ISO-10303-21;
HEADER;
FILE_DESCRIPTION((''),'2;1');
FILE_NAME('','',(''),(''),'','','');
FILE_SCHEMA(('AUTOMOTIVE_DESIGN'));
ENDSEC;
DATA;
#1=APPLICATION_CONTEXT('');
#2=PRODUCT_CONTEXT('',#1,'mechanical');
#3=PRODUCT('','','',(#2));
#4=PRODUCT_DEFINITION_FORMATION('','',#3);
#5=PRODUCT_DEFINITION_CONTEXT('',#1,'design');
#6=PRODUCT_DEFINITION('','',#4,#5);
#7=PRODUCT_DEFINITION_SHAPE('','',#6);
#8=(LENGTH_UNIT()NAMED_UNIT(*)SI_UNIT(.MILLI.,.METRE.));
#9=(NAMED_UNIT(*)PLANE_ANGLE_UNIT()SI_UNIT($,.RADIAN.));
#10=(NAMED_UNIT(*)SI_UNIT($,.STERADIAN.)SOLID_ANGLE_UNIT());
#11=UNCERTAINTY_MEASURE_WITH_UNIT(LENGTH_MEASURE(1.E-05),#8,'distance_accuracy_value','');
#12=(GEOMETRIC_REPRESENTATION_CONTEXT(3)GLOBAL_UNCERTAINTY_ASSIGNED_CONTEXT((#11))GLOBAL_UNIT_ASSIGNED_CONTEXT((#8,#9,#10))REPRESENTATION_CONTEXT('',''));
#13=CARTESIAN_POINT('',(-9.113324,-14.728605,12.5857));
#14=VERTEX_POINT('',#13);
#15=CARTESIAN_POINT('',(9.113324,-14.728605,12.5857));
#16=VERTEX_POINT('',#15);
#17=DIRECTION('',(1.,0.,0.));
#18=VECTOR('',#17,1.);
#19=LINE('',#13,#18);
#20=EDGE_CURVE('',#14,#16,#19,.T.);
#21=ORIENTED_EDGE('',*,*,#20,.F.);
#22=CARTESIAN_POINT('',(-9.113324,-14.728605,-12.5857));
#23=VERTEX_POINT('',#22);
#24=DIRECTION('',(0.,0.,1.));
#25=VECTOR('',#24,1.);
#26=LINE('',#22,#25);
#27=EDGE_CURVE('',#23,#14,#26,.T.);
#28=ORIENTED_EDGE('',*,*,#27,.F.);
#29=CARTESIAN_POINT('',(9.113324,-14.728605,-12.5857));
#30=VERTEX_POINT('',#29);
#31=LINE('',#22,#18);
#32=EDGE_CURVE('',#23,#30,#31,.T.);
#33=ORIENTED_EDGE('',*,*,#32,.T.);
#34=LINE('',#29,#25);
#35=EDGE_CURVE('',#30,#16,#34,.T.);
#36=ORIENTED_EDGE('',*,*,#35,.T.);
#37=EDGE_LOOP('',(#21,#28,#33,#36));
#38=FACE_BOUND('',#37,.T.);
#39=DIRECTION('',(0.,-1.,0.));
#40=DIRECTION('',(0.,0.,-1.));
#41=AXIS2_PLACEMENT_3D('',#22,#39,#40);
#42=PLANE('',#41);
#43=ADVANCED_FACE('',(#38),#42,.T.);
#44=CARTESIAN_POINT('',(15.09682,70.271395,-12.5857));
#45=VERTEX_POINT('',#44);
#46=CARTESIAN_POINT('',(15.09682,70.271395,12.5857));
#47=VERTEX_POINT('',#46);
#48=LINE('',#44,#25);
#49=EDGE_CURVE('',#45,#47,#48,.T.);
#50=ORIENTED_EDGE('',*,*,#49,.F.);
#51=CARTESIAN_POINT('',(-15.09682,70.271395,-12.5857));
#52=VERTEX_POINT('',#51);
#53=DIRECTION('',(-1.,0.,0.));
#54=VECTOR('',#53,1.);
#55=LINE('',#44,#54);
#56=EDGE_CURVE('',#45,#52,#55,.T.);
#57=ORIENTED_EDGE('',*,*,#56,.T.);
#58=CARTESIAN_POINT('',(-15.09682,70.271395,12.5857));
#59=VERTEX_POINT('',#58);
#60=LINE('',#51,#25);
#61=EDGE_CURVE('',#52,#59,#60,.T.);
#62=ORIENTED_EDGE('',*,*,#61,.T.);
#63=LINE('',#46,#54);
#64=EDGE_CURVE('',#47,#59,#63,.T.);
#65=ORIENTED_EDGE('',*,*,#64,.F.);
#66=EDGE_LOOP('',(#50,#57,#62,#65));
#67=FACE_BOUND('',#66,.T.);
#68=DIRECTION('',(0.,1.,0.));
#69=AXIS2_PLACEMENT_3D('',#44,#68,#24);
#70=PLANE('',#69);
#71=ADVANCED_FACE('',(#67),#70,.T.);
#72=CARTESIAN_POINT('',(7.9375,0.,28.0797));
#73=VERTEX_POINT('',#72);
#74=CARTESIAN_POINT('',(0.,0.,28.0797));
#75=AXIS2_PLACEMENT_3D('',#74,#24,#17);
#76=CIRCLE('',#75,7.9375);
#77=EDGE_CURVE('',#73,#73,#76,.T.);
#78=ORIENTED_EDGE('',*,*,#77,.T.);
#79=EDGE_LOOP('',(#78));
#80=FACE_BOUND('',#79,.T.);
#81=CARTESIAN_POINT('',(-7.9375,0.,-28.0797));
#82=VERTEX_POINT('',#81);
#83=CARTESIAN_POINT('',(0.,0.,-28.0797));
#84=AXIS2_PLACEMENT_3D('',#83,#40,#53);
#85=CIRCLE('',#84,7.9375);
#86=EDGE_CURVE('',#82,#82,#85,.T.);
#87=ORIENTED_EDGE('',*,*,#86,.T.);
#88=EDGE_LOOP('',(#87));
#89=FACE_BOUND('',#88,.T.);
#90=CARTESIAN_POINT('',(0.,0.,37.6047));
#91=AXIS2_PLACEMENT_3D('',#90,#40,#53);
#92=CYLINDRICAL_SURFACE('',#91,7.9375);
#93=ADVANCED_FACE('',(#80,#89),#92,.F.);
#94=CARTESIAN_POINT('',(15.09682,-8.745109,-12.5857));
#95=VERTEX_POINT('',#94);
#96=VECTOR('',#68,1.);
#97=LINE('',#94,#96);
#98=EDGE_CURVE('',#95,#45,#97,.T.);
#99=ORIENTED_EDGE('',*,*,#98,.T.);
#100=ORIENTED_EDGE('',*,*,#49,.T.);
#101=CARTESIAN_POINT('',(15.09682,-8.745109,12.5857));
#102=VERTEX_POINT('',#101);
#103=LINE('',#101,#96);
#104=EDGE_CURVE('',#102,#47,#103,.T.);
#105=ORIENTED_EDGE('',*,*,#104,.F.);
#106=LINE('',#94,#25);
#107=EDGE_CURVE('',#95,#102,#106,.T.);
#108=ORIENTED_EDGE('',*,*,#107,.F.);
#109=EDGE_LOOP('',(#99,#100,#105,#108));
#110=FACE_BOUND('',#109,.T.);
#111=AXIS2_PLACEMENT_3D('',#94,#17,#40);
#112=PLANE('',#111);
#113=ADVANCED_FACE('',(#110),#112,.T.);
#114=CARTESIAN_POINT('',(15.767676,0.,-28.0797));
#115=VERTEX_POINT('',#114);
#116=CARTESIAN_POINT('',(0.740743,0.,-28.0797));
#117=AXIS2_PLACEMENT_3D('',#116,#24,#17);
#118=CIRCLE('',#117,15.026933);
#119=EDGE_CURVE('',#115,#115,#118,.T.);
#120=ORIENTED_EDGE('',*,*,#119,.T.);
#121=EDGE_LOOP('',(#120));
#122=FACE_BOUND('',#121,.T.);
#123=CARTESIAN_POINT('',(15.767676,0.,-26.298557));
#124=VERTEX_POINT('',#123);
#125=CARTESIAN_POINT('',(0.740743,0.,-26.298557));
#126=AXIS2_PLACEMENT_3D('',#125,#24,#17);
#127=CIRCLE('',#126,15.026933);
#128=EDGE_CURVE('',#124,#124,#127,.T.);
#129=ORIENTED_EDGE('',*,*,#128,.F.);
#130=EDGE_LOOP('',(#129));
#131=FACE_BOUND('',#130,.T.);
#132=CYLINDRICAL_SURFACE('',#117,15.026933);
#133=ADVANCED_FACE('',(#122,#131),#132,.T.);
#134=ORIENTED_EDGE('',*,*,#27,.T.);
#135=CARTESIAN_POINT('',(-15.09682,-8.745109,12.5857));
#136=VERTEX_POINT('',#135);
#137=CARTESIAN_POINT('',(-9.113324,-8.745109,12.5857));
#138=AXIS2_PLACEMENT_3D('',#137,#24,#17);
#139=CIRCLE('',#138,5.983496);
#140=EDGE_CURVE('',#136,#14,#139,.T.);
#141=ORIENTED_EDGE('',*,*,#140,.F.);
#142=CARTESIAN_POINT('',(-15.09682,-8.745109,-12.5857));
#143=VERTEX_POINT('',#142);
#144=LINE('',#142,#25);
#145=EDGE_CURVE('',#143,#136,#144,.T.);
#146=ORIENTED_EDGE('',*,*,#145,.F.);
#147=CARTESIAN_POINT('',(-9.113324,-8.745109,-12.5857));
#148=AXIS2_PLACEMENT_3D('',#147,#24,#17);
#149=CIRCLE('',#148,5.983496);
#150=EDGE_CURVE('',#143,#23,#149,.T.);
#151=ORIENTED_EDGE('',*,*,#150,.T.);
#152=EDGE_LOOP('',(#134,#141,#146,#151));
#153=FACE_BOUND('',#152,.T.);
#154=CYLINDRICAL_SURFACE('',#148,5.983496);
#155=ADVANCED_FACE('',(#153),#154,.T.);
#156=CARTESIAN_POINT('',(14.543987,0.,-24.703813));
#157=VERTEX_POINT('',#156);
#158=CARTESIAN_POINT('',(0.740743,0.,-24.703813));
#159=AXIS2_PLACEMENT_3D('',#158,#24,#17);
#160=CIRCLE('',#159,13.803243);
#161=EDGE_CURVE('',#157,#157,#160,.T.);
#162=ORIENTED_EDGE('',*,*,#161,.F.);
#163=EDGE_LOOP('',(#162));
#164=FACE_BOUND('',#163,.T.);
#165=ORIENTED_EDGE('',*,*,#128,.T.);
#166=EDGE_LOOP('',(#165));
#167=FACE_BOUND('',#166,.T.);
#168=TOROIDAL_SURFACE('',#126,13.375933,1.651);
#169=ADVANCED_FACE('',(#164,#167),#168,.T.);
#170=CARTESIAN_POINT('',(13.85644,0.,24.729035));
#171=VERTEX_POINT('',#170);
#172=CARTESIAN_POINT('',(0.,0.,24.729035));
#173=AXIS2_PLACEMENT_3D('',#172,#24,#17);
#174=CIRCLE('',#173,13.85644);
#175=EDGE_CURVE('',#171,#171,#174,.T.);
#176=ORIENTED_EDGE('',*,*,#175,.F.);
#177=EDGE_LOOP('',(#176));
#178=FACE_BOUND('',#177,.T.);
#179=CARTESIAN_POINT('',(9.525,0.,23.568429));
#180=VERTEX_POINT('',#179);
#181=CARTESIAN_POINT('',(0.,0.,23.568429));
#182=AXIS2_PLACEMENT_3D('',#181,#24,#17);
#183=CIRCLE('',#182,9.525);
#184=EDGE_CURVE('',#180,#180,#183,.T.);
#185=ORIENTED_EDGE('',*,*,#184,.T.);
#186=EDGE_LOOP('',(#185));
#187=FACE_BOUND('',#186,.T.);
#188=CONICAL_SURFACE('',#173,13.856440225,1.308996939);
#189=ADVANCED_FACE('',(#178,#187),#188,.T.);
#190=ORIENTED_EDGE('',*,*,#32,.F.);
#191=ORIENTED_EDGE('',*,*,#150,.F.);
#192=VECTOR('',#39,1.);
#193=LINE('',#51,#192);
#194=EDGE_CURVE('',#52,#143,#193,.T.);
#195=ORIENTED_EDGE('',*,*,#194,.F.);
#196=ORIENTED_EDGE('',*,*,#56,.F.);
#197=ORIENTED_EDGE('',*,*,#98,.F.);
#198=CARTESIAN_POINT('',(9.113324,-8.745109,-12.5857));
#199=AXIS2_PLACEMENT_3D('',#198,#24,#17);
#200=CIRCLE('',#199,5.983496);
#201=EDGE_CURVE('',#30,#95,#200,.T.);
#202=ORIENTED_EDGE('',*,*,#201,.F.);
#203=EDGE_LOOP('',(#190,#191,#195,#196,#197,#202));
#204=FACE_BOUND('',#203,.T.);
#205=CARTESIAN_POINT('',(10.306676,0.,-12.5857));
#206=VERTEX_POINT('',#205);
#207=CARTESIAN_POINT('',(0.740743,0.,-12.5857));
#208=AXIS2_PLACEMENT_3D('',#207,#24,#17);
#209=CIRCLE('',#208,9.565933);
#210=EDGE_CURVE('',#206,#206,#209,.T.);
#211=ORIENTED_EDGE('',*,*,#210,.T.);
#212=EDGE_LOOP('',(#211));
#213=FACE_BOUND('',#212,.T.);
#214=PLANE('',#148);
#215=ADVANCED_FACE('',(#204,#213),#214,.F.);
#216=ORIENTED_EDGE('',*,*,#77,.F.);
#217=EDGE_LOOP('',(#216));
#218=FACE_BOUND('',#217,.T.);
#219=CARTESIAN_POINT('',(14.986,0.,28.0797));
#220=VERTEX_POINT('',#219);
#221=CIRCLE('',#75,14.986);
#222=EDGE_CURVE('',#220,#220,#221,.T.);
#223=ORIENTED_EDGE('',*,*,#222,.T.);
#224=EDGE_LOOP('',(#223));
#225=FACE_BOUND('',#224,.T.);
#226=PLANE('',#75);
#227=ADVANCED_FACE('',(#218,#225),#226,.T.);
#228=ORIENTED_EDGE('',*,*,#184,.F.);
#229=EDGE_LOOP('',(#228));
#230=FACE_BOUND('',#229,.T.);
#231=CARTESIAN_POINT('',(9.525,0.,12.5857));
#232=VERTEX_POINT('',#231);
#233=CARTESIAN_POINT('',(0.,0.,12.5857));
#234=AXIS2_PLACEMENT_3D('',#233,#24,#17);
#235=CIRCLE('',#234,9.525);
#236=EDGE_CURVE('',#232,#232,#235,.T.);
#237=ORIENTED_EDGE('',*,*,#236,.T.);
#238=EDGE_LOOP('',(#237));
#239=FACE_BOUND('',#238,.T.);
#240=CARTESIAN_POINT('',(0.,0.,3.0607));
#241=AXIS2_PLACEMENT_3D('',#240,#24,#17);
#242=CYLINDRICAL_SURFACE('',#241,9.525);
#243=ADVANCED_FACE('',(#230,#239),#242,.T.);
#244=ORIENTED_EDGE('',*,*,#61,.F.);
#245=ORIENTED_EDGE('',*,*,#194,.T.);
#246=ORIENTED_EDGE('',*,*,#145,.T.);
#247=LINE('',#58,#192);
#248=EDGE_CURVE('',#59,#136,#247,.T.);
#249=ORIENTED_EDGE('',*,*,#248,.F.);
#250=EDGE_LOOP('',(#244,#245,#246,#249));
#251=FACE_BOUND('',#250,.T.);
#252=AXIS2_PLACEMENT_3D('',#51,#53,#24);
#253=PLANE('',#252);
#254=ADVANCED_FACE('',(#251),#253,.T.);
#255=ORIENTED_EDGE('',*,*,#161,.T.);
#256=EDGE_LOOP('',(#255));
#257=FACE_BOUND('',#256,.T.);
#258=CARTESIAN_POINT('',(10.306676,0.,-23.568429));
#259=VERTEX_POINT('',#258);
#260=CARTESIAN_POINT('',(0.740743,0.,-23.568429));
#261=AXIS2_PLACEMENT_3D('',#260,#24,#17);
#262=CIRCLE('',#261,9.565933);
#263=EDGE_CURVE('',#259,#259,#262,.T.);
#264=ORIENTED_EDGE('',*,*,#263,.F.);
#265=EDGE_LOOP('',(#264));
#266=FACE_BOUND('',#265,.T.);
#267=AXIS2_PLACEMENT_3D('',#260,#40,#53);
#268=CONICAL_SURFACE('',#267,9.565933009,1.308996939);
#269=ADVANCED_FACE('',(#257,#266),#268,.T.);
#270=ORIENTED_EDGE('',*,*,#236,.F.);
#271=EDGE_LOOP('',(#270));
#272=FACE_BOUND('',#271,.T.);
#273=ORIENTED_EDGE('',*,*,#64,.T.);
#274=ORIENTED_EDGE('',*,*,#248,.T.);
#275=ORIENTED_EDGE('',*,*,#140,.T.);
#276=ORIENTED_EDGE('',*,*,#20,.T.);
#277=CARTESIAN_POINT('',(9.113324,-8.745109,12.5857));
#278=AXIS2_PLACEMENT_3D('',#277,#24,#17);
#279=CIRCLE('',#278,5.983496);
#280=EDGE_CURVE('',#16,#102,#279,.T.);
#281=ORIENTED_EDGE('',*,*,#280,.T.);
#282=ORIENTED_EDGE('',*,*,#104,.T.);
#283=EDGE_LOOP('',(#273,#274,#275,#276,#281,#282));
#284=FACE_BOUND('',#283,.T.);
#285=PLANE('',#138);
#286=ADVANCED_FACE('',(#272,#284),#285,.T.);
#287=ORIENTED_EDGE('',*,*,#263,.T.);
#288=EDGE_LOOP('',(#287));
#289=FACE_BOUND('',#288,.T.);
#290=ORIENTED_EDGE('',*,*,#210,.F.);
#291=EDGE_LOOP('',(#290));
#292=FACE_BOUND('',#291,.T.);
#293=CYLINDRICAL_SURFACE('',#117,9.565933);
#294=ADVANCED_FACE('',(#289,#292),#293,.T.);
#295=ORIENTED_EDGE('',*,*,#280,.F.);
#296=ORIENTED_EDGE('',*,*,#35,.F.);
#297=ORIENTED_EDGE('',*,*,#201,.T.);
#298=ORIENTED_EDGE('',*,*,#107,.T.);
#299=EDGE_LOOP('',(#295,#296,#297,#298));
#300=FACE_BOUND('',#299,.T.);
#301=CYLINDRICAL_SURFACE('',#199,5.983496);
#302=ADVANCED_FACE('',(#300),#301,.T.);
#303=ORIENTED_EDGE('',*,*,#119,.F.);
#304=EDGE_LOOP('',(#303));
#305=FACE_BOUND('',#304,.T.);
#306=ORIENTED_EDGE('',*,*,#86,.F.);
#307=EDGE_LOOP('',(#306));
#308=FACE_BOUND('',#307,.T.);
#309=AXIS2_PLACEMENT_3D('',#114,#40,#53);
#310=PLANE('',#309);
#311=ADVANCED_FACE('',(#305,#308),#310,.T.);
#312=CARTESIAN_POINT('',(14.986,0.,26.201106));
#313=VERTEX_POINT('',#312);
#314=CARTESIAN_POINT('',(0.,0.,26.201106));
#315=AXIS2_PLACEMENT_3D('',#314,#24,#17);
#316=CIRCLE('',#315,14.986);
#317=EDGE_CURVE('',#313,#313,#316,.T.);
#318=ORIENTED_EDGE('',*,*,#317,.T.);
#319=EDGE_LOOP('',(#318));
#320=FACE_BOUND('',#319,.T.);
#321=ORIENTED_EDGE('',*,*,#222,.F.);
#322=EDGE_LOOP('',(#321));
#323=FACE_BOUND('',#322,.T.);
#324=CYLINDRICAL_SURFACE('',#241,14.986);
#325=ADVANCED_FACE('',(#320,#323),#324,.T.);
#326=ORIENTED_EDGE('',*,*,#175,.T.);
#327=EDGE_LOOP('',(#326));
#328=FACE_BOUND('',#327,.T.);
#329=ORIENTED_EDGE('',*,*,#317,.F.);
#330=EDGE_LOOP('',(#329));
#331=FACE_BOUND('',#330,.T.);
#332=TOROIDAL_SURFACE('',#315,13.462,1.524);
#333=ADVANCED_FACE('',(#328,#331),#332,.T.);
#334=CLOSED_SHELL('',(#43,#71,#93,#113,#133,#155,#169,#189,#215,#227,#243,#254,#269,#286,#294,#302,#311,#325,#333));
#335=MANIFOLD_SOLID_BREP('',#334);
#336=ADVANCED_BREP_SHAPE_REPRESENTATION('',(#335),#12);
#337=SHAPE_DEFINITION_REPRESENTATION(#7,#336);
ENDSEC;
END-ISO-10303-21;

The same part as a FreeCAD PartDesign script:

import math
import FreeCAD as App
import Part
import Sketcher
from FreeCAD import Vector
Q = App.Units.Quantity


def add_polygon(sketch, points):
    """Adds a closed chain of lines whose ends are joined by coincident constraints."""
    first, n = sketch.GeometryCount, len(points)
    for a, b in zip(points, points[1:] + points[:1]):
        sketch.addGeometry(Part.LineSegment(App.Vector(*a, 0), App.Vector(*b, 0)), False)
    for i in range(n):
        sketch.addConstraint(Sketcher.Constraint("Coincident", first + i, 2, first + (i + 1) % n, 1))

doc = App.newDocument("Part")
body = doc.addObject("PartDesign::Body", "Body")

# Sketch on XY plane
sketch1 = doc.addObject("Sketcher::SketchObject", "Sketch")
body.addObject(sketch1)
sketch1.AttachmentSupport = (doc.XY_Plane, [""])
sketch1.MapMode = "FlatFace"
sketch1.AttachmentOffset = App.Placement(Vector(0, 0, 0.4955 * 25.4), App.Rotation())
sketch1.addGeometry(Part.LineSegment(Vector(-15, 70, 0), Vector(-15, -9, 0)), False)
sketch1.addGeometry(Part.ArcOfCircle(Part.Circle(Vector(-9, -9, 0), Vector(0, 0, 1), 6), math.radians(180), math.radians(270)), False)
sketch1.addGeometry(Part.LineSegment(Vector(-9, -15, 0), Vector(9, -15, 0)), False)
sketch1.addGeometry(Part.ArcOfCircle(Part.Circle(Vector(9, -9, 0), Vector(0, 0, 1), 6), math.radians(-90), math.radians(0)), False)
sketch1.addGeometry(Part.LineSegment(Vector(15, -9, 0), Vector(15, 70, 0)), False)
sketch1.addGeometry(Part.LineSegment(Vector(15, 70, 0), Vector(-15, 70, 0)), False)
sketch1.addConstraint(Sketcher.Constraint("Tangent", 0, 2, 1, 1))
sketch1.addConstraint(Sketcher.Constraint("Tangent", 1, 2, 2, 1))
sketch1.addConstraint(Sketcher.Constraint("Tangent", 2, 2, 3, 1))
sketch1.addConstraint(Sketcher.Constraint("Tangent", 3, 2, 4, 1))
sketch1.addConstraint(Sketcher.Constraint("Coincident", 4, 2, 5, 1))
sketch1.addConstraint(Sketcher.Constraint("Coincident", 5, 2, 0, 1))
sketch1.addConstraint(Sketcher.Constraint("Vertical", 0))
sketch1.addConstraint(Sketcher.Constraint("Horizontal", 2))
sketch1.addConstraint(Sketcher.Constraint("Vertical", 4))
sketch1.addConstraint(Sketcher.Constraint("Horizontal", 5))
sketch1.addConstraint(Sketcher.Constraint("Equal", 1, 3))
sketch1.addConstraint(Sketcher.Constraint("Radius", 1, 5.983496))
sketch1.addConstraint(Sketcher.Constraint("DistanceX", 2, 1, 2, 2, 18.226649))
sketch1.addConstraint(Sketcher.Constraint("DistanceY", 2, 2, 4, 2, 85.0))
sketch1.addConstraint(Sketcher.Constraint("DistanceY", 1, 3, -1, 1, 8.745109))
sketch1.addConstraint(Sketcher.Constraint("DistanceX", 0, 2, -1, 1, 15.09682))
pad1 = doc.addObject("PartDesign::Pad", "Pad")
body.addObject(pad1)
pad1.Profile = sketch1
pad1.Length = Q("0.991 in")
pad1.Reversed = True

# Sketch on XZ plane
sketch2 = doc.addObject("Sketcher::SketchObject", "Sketch001")
body.addObject(sketch2)
sketch2.AttachmentSupport = (doc.XZ_Plane, [""])
sketch2.MapMode = "FlatFace"
sketch2.addGeometry(Part.LineSegment(Vector(15.8, -28.1, 0), Vector(0.7, -28.1, 0)), False)
sketch2.addGeometry(Part.LineSegment(Vector(0.7, -28.1, 0), Vector(0.7, -12.6, 0)), False)
sketch2.addGeometry(Part.LineSegment(Vector(0.7, -12.6, 0), Vector(10.3, -12.6, 0)), False)
sketch2.addGeometry(Part.LineSegment(Vector(10.3, -12.6, 0), Vector(10.3, -23.6, 0)), False)
sketch2.addGeometry(Part.LineSegment(Vector(10.3, -23.6, 0), Vector(14.5, -24.7, 0)), False)
sketch2.addGeometry(Part.ArcOfCircle(Part.Circle(Vector(14.1, -26.3, 0), Vector(0, 0, 1), 1.7), math.radians(0), math.radians(75)), False)
sketch2.addGeometry(Part.LineSegment(Vector(15.8, -26.3, 0), Vector(15.8, -28.1, 0)), False)
sketch2.addGeometry(Part.LineSegment(Vector(0.7, -28.1, 0), Vector(0.7, -12.6, 0)), True)  # axis
sketch2.addConstraint(Sketcher.Constraint("Coincident", 0, 2, 1, 1))
sketch2.addConstraint(Sketcher.Constraint("Coincident", 1, 2, 2, 1))
sketch2.addConstraint(Sketcher.Constraint("Coincident", 2, 2, 3, 1))
sketch2.addConstraint(Sketcher.Constraint("Coincident", 3, 2, 4, 1))
sketch2.addConstraint(Sketcher.Constraint("Tangent", 4, 2, 5, 2))
sketch2.addConstraint(Sketcher.Constraint("Tangent", 5, 1, 6, 1))
sketch2.addConstraint(Sketcher.Constraint("Coincident", 6, 2, 0, 1))
sketch2.addConstraint(Sketcher.Constraint("Horizontal", 0))
sketch2.addConstraint(Sketcher.Constraint("Vertical", 1))
sketch2.addConstraint(Sketcher.Constraint("Horizontal", 2))
sketch2.addConstraint(Sketcher.Constraint("Vertical", 3))
sketch2.addConstraint(Sketcher.Constraint("Vertical", 6))
sketch2.addConstraint(Sketcher.Constraint("Vertical", 7))
sketch2.addConstraint(Sketcher.Constraint("Coincident", 7, 1, 0, 2))
sketch2.addConstraint(Sketcher.Constraint("Horizontal", 2, 2, 7, 2))
sketch2.addConstraint(Sketcher.Constraint("Angle", 4, Q("-15 deg")))
sketch2.addConstraint(Sketcher.Constraint("Radius", 5, Q("0.065 in")))
sketch2.addConstraint(Sketcher.Constraint("DistanceY", 1, 1, 1, 2, Q("0.61 in")))
sketch2.addConstraint(Sketcher.Constraint("DistanceX", 2, 2, 5, 3, Q("0.15 in")))
sketch2.addConstraint(Sketcher.Constraint("DistanceY", 0, 2, -1, 1, Q("1.1055 in")))
sketch2.addConstraint(Sketcher.Constraint("DistanceY", 3, 2, 3, 1, 10.982729))
sketch2.addConstraint(Sketcher.Constraint("DistanceX", 0, 2, 0, 1, 15.026933))
sketch2.addConstraint(Sketcher.Constraint("DistanceX", -1, 1, 5, 3, 14.116676))
revolution = doc.addObject("PartDesign::Revolution", "Revolution")
body.addObject(revolution)
revolution.Profile = sketch2
revolution.ReferenceAxis = (sketch2, ["Axis0"])
revolution.Angle = 360

# Sketch on XZ plane
sketch3 = doc.addObject("Sketcher::SketchObject", "Sketch002")
body.addObject(sketch3)
sketch3.AttachmentSupport = (doc.XZ_Plane, [""])
sketch3.MapMode = "FlatFace"
sketch3.addGeometry(Part.LineSegment(Vector(9.5, 12.6, 0), Vector(0, 12.6, 0)), False)
sketch3.addGeometry(Part.LineSegment(Vector(0, 12.6, 0), Vector(0, 28.1, 0)), False)
sketch3.addGeometry(Part.LineSegment(Vector(0, 28.1, 0), Vector(15, 28.1, 0)), False)
sketch3.addGeometry(Part.LineSegment(Vector(15, 28.1, 0), Vector(15, 26.2, 0)), False)
sketch3.addGeometry(Part.ArcOfCircle(Part.Circle(Vector(13.5, 26.2, 0), Vector(0, 0, 1), 1.5), math.radians(-75), math.radians(0)), False)
sketch3.addGeometry(Part.LineSegment(Vector(13.9, 24.7, 0), Vector(9.5, 23.6, 0)), False)
sketch3.addGeometry(Part.LineSegment(Vector(9.5, 23.6, 0), Vector(9.5, 12.6, 0)), False)
sketch3.addConstraint(Sketcher.Constraint("Coincident", 0, 2, 1, 1))
sketch3.addConstraint(Sketcher.Constraint("Coincident", 1, 2, 2, 1))
sketch3.addConstraint(Sketcher.Constraint("Coincident", 2, 2, 3, 1))
sketch3.addConstraint(Sketcher.Constraint("Tangent", 3, 2, 4, 2))
sketch3.addConstraint(Sketcher.Constraint("Tangent", 4, 1, 5, 1))
sketch3.addConstraint(Sketcher.Constraint("Coincident", 5, 2, 6, 1))
sketch3.addConstraint(Sketcher.Constraint("Coincident", 6, 2, 0, 1))
sketch3.addConstraint(Sketcher.Constraint("Horizontal", 0))
sketch3.addConstraint(Sketcher.Constraint("Vertical", 1))
sketch3.addConstraint(Sketcher.Constraint("Horizontal", 2))
sketch3.addConstraint(Sketcher.Constraint("Vertical", 3))
sketch3.addConstraint(Sketcher.Constraint("Vertical", 6))
sketch3.addConstraint(Sketcher.Constraint("PointOnObject", 0, 2, -2))
sketch3.addConstraint(Sketcher.Constraint("Radius", 4, Q("0.06 in")))
sketch3.addConstraint(Sketcher.Constraint("Angle", 5, Q("-165 deg")))
sketch3.addConstraint(Sketcher.Constraint("DistanceX", 2, 1, 2, 2, Q("0.59 in")))
sketch3.addConstraint(Sketcher.Constraint("DistanceY", 1, 1, 1, 2, Q("0.61 in")))
sketch3.addConstraint(Sketcher.Constraint("DistanceX", 0, 2, 0, 1, Q("0.375 in")))
sketch3.addConstraint(Sketcher.Constraint("DistanceY", -1, 1, 0, 2, Q("0.4955 in")))
sketch3.addConstraint(Sketcher.Constraint("DistanceY", 6, 2, 6, 1, 10.982729))
revolution2 = doc.addObject("PartDesign::Revolution", "Revolution001")
body.addObject(revolution2)
revolution2.Profile = sketch3
revolution2.ReferenceAxis = (sketch3, ["V_Axis"])
revolution2.Angle = 360

# Sketch on XZ plane
sketch4 = doc.addObject("Sketcher::SketchObject", "Sketch003")
body.addObject(sketch4)
sketch4.AttachmentSupport = (doc.XZ_Plane, [""])
sketch4.MapMode = "FlatFace"
add_polygon(sketch4, [(8.6, 37.6), (0, 37.6), (0, -37.6), (8.6, -37.6), (8.6, -35.1), (7.9, -35.1), (7.9, 35.1), (8.6, 35.1)])  # lines 0-7
sketch4.addConstraint(Sketcher.Constraint("Horizontal", 0))
sketch4.addConstraint(Sketcher.Constraint("Vertical", 1))
sketch4.addConstraint(Sketcher.Constraint("Horizontal", 2))
sketch4.addConstraint(Sketcher.Constraint("Vertical", 3))
sketch4.addConstraint(Sketcher.Constraint("Horizontal", 4))
sketch4.addConstraint(Sketcher.Constraint("Vertical", 5))
sketch4.addConstraint(Sketcher.Constraint("Horizontal", 6))
sketch4.addConstraint(Sketcher.Constraint("Vertical", 7))
sketch4.addConstraint(Sketcher.Constraint("Symmetric", 0, 2, 1, 2, -1, 1))
sketch4.addConstraint(Sketcher.Constraint("Symmetric", 3, 2, 6, 2, -1))
sketch4.addConstraint(Sketcher.Constraint("DistanceY", 3, 1, 3, 2, Q("0.1 in")))
sketch4.addConstraint(Sketcher.Constraint("DistanceX", 0, 2, 0, 1, Q("0.34 in")))
sketch4.addConstraint(Sketcher.Constraint("DistanceY", 1, 2, 1, 1, Q("2.961 in")))
sketch4.addConstraint(Sketcher.Constraint("DistanceX", 4, 2, 4, 1, Q("0.0275 in")))
groove = doc.addObject("PartDesign::Groove", "Groove")
body.addObject(groove)
groove.Profile = sketch4
groove.ReferenceAxis = (sketch4, ["V_Axis"])
groove.Angle = 360

doc.recompute()
